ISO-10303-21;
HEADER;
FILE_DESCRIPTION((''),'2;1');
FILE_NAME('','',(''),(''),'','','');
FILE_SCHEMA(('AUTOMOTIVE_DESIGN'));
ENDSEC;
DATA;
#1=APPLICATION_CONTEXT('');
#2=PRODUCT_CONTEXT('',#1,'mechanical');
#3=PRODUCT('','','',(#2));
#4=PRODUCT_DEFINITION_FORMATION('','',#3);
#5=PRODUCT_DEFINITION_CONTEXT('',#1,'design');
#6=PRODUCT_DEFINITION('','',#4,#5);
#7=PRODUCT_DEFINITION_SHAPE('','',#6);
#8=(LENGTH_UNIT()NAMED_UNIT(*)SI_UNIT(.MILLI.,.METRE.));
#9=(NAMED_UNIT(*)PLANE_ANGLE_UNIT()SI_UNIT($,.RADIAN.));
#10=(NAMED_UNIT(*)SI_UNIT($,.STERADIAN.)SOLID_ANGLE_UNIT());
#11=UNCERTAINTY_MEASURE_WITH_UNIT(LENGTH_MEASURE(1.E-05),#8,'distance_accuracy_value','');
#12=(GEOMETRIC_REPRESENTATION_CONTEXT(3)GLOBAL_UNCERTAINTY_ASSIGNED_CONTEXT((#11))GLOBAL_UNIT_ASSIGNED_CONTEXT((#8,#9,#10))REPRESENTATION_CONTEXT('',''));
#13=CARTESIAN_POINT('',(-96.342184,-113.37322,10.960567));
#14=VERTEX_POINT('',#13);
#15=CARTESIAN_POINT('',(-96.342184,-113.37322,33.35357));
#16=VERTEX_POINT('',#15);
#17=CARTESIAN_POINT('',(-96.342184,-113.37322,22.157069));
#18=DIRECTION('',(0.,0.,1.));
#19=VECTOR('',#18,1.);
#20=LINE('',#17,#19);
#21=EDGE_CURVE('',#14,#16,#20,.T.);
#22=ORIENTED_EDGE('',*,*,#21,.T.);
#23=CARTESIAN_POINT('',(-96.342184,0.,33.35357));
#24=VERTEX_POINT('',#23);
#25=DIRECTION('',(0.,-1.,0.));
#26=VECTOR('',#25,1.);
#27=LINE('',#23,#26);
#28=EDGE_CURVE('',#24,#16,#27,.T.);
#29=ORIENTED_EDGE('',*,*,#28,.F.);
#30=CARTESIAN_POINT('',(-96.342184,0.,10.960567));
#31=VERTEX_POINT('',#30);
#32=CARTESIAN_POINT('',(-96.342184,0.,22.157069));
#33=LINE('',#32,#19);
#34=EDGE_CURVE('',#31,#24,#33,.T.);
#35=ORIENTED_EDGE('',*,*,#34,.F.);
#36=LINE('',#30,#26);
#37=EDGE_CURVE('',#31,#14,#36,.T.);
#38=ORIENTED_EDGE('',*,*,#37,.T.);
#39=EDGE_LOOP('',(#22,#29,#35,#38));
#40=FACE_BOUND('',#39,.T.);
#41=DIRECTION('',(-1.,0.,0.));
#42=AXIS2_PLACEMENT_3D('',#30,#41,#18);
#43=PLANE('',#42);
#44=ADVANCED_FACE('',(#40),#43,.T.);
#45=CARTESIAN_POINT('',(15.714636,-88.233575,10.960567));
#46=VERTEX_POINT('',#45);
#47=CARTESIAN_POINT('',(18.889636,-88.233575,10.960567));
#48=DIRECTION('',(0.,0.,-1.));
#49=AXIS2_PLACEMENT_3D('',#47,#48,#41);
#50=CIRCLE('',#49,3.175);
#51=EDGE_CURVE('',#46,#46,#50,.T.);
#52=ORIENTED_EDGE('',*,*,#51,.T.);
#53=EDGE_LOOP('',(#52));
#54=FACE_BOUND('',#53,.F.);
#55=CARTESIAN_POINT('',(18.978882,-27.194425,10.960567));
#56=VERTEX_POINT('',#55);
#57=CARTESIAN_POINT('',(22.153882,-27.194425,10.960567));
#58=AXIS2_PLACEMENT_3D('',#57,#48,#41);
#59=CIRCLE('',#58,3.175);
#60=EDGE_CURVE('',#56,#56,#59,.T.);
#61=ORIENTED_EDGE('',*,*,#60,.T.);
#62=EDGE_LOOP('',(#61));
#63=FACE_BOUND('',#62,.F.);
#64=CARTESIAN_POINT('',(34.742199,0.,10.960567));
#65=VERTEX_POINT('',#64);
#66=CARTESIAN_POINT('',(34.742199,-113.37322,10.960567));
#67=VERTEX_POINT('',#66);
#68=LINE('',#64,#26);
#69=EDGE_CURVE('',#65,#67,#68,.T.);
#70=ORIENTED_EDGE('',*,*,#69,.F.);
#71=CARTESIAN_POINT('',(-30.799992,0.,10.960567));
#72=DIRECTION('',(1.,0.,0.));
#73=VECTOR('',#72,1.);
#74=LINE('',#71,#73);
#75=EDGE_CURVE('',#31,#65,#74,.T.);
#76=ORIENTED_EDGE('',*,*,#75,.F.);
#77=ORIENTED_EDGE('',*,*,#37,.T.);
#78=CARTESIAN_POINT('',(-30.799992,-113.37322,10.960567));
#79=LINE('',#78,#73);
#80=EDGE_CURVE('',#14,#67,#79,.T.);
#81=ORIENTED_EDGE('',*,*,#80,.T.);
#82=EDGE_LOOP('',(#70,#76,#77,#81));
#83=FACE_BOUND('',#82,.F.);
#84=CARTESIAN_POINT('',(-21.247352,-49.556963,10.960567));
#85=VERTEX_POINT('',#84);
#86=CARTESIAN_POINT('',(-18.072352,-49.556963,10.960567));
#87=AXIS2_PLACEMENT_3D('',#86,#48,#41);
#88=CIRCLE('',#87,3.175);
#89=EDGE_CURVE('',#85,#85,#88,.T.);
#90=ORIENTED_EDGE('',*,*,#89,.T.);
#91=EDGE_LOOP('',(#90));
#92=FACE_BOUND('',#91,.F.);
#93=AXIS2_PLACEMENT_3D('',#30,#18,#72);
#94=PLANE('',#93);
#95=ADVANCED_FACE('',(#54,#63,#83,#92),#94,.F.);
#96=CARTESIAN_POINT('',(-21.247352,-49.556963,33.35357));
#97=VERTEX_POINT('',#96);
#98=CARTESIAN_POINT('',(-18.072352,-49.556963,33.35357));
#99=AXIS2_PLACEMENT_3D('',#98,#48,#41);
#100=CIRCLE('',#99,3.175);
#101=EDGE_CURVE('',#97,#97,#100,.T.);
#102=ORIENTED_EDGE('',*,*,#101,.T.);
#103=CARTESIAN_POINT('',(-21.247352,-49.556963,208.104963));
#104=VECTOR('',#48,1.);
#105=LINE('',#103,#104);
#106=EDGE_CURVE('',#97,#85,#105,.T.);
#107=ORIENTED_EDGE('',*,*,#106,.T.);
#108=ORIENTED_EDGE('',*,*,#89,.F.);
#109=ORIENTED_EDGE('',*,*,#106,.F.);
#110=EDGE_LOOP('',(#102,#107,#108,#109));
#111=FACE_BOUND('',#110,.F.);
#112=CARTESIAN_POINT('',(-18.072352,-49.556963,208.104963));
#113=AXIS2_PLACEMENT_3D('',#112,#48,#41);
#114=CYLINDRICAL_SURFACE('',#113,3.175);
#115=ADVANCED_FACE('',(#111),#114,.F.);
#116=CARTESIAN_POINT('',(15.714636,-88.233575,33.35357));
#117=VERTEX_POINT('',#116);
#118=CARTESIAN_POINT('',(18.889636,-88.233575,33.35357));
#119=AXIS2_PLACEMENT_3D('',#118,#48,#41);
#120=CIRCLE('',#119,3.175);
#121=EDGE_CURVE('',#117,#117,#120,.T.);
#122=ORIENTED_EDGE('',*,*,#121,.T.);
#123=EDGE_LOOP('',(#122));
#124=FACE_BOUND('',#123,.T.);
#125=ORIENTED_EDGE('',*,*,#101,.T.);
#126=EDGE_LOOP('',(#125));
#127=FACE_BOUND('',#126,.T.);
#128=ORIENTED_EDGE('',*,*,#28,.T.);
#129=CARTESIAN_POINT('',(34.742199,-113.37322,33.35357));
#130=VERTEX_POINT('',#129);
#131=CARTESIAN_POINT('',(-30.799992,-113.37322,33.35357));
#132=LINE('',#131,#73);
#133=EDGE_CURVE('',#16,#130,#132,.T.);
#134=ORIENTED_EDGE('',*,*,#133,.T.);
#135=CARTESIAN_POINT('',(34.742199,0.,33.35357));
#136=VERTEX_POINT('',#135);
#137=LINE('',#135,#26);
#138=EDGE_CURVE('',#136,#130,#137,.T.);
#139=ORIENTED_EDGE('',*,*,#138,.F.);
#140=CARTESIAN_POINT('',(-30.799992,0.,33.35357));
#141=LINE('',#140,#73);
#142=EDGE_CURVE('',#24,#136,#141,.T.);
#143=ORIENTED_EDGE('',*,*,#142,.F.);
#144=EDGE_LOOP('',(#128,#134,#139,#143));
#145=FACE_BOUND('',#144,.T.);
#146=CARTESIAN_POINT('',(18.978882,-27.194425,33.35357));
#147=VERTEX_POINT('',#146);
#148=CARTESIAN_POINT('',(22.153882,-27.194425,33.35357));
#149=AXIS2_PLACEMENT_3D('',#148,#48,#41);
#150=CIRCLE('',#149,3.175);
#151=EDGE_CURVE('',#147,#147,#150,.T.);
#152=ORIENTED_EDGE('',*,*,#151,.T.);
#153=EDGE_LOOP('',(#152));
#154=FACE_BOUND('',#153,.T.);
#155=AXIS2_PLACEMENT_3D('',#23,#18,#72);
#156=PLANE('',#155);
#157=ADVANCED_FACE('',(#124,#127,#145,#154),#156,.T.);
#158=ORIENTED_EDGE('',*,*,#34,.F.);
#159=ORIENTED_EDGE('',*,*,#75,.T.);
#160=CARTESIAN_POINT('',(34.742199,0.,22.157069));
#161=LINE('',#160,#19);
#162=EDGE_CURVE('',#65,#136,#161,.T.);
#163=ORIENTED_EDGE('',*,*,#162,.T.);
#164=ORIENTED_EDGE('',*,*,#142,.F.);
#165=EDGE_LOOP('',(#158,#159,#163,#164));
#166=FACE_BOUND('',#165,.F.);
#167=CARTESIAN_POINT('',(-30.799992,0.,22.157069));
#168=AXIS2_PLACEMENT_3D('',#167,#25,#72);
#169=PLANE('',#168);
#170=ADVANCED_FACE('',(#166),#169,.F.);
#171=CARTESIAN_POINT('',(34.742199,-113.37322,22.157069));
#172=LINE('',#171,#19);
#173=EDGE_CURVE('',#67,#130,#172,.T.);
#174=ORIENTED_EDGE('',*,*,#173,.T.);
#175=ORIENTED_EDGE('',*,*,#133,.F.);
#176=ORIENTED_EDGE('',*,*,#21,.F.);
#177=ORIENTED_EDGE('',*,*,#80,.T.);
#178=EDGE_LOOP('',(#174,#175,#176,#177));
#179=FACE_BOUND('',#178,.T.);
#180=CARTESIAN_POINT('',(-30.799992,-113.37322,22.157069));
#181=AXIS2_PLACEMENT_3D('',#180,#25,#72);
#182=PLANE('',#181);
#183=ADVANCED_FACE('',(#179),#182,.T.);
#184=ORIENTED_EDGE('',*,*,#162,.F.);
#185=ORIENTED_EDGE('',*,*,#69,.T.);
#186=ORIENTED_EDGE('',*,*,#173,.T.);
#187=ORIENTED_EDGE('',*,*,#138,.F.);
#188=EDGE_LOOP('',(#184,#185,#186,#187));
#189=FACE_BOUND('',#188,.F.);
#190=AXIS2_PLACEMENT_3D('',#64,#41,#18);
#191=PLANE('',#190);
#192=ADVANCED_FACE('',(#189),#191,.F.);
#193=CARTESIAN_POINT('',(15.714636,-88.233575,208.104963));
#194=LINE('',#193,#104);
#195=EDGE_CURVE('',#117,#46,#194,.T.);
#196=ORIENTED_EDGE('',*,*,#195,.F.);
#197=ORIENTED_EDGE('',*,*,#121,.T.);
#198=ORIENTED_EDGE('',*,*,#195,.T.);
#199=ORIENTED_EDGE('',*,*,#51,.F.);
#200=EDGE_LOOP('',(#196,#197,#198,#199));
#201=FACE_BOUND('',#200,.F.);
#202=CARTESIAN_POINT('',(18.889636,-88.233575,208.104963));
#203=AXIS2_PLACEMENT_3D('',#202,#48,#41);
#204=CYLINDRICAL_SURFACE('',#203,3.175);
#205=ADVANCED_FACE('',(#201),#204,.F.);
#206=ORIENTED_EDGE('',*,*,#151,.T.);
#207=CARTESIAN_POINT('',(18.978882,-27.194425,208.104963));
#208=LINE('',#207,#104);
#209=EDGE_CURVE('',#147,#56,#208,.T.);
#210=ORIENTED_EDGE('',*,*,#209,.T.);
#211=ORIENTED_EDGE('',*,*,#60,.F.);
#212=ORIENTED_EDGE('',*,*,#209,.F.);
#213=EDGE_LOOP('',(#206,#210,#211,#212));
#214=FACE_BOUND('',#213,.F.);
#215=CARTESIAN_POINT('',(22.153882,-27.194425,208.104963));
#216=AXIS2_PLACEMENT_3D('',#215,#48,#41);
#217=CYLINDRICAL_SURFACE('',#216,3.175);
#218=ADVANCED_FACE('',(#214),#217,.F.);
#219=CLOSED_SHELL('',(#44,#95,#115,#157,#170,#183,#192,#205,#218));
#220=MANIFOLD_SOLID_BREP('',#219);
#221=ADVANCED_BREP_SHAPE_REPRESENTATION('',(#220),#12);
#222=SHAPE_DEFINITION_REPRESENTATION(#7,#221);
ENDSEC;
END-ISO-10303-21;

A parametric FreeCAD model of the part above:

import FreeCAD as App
import Part
import Sketcher
Q = App.Units.Quantity

doc = App.newDocument("Part")
params = doc.addObject("Spreadsheet::Sheet", "Params")
for row, (alias, value) in enumerate([
    ("pad1_length", "113.37322 mm"),
    ("sketch2_diameter", "0.25 in"),
    ("hole_diameter", "0.25 in"),
], start=1):
    params.set(f"A{row}", alias)
    params.set(f"B{row}", "=" + value)
    params.setAlias(f"B{row}", alias)

body = doc.addObject("PartDesign::Body", "Body")

sketch1 = doc.addObject("Sketcher::SketchObject", "Sketch")
body.addObject(sketch1)
sketch1.AttachmentSupport = (doc.XZ_Plane, [""])
sketch1.MapMode = "FlatFace"
sketch1.addGeometry([
    Part.LineSegment(App.Vector(-96, 33, 0), App.Vector(-96, 11, 0)),
    Part.LineSegment(App.Vector(-96, 11, 0), App.Vector(35, 11, 0)),
    Part.LineSegment(App.Vector(35, 11, 0), App.Vector(35, 33, 0)),
    Part.LineSegment(App.Vector(35, 33, 0), App.Vector(-96, 33, 0)),
], False)
sketch1.addConstraint([
    Sketcher.Constraint("Coincident", 0, 2, 1, 1),
    Sketcher.Constraint("Coincident", 1, 2, 2, 1),
    Sketcher.Constraint("Coincident", 2, 2, 3, 1),
    Sketcher.Constraint("Coincident", 3, 2, 0, 1),
    Sketcher.Constraint("Vertical", 0),
    Sketcher.Constraint("Horizontal", 1),
    Sketcher.Constraint("Vertical", 2),
    Sketcher.Constraint("Horizontal", 3),
    Sketcher.Constraint("DistanceX", -1, 1, 1, 2, 34.742199),
    Sketcher.Constraint("DistanceX", 1, 1, 1, 2, 131.084383),
    Sketcher.Constraint("DistanceY", 0, 2, 0, 1, 22.393003),
    Sketcher.Constraint("DistanceY", -1, 1, 2, 2, 33.35357),
])
pad1 = doc.addObject("PartDesign::Pad", "Pad")
body.addObject(pad1)
pad1.Profile = sketch1
pad1.setExpression("Length", "Params.pad1_length")

sketch2 = doc.addObject("Sketcher::SketchObject", "Sketch001")
body.addObject(sketch2)
sketch2.AttachmentSupport = (doc.XY_Plane, [""])
sketch2.MapMode = "FlatFace"
sketch2.AttachmentOffset = App.Placement(App.Vector(0, 0, 33.353571), App.Rotation())
sketch2.addGeometry([
    Part.Circle(App.Vector(22.2, -27.2, 0), App.Vector(0, 0, 1), 3.2),
    Part.Circle(App.Vector(-18.1, -49.6, 0), App.Vector(0, 0, 1), 3.2),
    Part.Circle(App.Vector(18.9, -88.2, 0), App.Vector(0, 0, 1), 3.2),
], False)
sketch2.addConstraint([
    Sketcher.Constraint("Equal", 0, 1),
    Sketcher.Constraint("Equal", 1, 2),
    Sketcher.Constraint("Diameter", 0, Q("0.25 in")),
    Sketcher.Constraint("DistanceX", -1, 1, 0, 3, Q("0.8722001 in")),
    Sketcher.Constraint("DistanceX", 1, 3, -1, 1, 18.072352),
    Sketcher.Constraint("DistanceY", 1, 3, 0, 3, 22.362538),
    Sketcher.Constraint("DistanceY", 2, 3, 0, 3, 61.03915),
    Sketcher.Constraint("DistanceY", 0, 3, -1, 1, 27.194425),
    Sketcher.Constraint("DistanceX", -1, 1, 2, 3, 18.889636),
])
sketch2.setExpression("Constraints[2]", "Params.sketch2_diameter")
doc.recompute()
hole = doc.addObject("PartDesign::Hole", "Hole")
body.addObject(hole)
hole.Profile = sketch2
hole.ThreadType = "None"
hole.setExpression("Diameter", "Params.hole_diameter")
hole.DepthType = "ThroughAll"

doc.recompute()
